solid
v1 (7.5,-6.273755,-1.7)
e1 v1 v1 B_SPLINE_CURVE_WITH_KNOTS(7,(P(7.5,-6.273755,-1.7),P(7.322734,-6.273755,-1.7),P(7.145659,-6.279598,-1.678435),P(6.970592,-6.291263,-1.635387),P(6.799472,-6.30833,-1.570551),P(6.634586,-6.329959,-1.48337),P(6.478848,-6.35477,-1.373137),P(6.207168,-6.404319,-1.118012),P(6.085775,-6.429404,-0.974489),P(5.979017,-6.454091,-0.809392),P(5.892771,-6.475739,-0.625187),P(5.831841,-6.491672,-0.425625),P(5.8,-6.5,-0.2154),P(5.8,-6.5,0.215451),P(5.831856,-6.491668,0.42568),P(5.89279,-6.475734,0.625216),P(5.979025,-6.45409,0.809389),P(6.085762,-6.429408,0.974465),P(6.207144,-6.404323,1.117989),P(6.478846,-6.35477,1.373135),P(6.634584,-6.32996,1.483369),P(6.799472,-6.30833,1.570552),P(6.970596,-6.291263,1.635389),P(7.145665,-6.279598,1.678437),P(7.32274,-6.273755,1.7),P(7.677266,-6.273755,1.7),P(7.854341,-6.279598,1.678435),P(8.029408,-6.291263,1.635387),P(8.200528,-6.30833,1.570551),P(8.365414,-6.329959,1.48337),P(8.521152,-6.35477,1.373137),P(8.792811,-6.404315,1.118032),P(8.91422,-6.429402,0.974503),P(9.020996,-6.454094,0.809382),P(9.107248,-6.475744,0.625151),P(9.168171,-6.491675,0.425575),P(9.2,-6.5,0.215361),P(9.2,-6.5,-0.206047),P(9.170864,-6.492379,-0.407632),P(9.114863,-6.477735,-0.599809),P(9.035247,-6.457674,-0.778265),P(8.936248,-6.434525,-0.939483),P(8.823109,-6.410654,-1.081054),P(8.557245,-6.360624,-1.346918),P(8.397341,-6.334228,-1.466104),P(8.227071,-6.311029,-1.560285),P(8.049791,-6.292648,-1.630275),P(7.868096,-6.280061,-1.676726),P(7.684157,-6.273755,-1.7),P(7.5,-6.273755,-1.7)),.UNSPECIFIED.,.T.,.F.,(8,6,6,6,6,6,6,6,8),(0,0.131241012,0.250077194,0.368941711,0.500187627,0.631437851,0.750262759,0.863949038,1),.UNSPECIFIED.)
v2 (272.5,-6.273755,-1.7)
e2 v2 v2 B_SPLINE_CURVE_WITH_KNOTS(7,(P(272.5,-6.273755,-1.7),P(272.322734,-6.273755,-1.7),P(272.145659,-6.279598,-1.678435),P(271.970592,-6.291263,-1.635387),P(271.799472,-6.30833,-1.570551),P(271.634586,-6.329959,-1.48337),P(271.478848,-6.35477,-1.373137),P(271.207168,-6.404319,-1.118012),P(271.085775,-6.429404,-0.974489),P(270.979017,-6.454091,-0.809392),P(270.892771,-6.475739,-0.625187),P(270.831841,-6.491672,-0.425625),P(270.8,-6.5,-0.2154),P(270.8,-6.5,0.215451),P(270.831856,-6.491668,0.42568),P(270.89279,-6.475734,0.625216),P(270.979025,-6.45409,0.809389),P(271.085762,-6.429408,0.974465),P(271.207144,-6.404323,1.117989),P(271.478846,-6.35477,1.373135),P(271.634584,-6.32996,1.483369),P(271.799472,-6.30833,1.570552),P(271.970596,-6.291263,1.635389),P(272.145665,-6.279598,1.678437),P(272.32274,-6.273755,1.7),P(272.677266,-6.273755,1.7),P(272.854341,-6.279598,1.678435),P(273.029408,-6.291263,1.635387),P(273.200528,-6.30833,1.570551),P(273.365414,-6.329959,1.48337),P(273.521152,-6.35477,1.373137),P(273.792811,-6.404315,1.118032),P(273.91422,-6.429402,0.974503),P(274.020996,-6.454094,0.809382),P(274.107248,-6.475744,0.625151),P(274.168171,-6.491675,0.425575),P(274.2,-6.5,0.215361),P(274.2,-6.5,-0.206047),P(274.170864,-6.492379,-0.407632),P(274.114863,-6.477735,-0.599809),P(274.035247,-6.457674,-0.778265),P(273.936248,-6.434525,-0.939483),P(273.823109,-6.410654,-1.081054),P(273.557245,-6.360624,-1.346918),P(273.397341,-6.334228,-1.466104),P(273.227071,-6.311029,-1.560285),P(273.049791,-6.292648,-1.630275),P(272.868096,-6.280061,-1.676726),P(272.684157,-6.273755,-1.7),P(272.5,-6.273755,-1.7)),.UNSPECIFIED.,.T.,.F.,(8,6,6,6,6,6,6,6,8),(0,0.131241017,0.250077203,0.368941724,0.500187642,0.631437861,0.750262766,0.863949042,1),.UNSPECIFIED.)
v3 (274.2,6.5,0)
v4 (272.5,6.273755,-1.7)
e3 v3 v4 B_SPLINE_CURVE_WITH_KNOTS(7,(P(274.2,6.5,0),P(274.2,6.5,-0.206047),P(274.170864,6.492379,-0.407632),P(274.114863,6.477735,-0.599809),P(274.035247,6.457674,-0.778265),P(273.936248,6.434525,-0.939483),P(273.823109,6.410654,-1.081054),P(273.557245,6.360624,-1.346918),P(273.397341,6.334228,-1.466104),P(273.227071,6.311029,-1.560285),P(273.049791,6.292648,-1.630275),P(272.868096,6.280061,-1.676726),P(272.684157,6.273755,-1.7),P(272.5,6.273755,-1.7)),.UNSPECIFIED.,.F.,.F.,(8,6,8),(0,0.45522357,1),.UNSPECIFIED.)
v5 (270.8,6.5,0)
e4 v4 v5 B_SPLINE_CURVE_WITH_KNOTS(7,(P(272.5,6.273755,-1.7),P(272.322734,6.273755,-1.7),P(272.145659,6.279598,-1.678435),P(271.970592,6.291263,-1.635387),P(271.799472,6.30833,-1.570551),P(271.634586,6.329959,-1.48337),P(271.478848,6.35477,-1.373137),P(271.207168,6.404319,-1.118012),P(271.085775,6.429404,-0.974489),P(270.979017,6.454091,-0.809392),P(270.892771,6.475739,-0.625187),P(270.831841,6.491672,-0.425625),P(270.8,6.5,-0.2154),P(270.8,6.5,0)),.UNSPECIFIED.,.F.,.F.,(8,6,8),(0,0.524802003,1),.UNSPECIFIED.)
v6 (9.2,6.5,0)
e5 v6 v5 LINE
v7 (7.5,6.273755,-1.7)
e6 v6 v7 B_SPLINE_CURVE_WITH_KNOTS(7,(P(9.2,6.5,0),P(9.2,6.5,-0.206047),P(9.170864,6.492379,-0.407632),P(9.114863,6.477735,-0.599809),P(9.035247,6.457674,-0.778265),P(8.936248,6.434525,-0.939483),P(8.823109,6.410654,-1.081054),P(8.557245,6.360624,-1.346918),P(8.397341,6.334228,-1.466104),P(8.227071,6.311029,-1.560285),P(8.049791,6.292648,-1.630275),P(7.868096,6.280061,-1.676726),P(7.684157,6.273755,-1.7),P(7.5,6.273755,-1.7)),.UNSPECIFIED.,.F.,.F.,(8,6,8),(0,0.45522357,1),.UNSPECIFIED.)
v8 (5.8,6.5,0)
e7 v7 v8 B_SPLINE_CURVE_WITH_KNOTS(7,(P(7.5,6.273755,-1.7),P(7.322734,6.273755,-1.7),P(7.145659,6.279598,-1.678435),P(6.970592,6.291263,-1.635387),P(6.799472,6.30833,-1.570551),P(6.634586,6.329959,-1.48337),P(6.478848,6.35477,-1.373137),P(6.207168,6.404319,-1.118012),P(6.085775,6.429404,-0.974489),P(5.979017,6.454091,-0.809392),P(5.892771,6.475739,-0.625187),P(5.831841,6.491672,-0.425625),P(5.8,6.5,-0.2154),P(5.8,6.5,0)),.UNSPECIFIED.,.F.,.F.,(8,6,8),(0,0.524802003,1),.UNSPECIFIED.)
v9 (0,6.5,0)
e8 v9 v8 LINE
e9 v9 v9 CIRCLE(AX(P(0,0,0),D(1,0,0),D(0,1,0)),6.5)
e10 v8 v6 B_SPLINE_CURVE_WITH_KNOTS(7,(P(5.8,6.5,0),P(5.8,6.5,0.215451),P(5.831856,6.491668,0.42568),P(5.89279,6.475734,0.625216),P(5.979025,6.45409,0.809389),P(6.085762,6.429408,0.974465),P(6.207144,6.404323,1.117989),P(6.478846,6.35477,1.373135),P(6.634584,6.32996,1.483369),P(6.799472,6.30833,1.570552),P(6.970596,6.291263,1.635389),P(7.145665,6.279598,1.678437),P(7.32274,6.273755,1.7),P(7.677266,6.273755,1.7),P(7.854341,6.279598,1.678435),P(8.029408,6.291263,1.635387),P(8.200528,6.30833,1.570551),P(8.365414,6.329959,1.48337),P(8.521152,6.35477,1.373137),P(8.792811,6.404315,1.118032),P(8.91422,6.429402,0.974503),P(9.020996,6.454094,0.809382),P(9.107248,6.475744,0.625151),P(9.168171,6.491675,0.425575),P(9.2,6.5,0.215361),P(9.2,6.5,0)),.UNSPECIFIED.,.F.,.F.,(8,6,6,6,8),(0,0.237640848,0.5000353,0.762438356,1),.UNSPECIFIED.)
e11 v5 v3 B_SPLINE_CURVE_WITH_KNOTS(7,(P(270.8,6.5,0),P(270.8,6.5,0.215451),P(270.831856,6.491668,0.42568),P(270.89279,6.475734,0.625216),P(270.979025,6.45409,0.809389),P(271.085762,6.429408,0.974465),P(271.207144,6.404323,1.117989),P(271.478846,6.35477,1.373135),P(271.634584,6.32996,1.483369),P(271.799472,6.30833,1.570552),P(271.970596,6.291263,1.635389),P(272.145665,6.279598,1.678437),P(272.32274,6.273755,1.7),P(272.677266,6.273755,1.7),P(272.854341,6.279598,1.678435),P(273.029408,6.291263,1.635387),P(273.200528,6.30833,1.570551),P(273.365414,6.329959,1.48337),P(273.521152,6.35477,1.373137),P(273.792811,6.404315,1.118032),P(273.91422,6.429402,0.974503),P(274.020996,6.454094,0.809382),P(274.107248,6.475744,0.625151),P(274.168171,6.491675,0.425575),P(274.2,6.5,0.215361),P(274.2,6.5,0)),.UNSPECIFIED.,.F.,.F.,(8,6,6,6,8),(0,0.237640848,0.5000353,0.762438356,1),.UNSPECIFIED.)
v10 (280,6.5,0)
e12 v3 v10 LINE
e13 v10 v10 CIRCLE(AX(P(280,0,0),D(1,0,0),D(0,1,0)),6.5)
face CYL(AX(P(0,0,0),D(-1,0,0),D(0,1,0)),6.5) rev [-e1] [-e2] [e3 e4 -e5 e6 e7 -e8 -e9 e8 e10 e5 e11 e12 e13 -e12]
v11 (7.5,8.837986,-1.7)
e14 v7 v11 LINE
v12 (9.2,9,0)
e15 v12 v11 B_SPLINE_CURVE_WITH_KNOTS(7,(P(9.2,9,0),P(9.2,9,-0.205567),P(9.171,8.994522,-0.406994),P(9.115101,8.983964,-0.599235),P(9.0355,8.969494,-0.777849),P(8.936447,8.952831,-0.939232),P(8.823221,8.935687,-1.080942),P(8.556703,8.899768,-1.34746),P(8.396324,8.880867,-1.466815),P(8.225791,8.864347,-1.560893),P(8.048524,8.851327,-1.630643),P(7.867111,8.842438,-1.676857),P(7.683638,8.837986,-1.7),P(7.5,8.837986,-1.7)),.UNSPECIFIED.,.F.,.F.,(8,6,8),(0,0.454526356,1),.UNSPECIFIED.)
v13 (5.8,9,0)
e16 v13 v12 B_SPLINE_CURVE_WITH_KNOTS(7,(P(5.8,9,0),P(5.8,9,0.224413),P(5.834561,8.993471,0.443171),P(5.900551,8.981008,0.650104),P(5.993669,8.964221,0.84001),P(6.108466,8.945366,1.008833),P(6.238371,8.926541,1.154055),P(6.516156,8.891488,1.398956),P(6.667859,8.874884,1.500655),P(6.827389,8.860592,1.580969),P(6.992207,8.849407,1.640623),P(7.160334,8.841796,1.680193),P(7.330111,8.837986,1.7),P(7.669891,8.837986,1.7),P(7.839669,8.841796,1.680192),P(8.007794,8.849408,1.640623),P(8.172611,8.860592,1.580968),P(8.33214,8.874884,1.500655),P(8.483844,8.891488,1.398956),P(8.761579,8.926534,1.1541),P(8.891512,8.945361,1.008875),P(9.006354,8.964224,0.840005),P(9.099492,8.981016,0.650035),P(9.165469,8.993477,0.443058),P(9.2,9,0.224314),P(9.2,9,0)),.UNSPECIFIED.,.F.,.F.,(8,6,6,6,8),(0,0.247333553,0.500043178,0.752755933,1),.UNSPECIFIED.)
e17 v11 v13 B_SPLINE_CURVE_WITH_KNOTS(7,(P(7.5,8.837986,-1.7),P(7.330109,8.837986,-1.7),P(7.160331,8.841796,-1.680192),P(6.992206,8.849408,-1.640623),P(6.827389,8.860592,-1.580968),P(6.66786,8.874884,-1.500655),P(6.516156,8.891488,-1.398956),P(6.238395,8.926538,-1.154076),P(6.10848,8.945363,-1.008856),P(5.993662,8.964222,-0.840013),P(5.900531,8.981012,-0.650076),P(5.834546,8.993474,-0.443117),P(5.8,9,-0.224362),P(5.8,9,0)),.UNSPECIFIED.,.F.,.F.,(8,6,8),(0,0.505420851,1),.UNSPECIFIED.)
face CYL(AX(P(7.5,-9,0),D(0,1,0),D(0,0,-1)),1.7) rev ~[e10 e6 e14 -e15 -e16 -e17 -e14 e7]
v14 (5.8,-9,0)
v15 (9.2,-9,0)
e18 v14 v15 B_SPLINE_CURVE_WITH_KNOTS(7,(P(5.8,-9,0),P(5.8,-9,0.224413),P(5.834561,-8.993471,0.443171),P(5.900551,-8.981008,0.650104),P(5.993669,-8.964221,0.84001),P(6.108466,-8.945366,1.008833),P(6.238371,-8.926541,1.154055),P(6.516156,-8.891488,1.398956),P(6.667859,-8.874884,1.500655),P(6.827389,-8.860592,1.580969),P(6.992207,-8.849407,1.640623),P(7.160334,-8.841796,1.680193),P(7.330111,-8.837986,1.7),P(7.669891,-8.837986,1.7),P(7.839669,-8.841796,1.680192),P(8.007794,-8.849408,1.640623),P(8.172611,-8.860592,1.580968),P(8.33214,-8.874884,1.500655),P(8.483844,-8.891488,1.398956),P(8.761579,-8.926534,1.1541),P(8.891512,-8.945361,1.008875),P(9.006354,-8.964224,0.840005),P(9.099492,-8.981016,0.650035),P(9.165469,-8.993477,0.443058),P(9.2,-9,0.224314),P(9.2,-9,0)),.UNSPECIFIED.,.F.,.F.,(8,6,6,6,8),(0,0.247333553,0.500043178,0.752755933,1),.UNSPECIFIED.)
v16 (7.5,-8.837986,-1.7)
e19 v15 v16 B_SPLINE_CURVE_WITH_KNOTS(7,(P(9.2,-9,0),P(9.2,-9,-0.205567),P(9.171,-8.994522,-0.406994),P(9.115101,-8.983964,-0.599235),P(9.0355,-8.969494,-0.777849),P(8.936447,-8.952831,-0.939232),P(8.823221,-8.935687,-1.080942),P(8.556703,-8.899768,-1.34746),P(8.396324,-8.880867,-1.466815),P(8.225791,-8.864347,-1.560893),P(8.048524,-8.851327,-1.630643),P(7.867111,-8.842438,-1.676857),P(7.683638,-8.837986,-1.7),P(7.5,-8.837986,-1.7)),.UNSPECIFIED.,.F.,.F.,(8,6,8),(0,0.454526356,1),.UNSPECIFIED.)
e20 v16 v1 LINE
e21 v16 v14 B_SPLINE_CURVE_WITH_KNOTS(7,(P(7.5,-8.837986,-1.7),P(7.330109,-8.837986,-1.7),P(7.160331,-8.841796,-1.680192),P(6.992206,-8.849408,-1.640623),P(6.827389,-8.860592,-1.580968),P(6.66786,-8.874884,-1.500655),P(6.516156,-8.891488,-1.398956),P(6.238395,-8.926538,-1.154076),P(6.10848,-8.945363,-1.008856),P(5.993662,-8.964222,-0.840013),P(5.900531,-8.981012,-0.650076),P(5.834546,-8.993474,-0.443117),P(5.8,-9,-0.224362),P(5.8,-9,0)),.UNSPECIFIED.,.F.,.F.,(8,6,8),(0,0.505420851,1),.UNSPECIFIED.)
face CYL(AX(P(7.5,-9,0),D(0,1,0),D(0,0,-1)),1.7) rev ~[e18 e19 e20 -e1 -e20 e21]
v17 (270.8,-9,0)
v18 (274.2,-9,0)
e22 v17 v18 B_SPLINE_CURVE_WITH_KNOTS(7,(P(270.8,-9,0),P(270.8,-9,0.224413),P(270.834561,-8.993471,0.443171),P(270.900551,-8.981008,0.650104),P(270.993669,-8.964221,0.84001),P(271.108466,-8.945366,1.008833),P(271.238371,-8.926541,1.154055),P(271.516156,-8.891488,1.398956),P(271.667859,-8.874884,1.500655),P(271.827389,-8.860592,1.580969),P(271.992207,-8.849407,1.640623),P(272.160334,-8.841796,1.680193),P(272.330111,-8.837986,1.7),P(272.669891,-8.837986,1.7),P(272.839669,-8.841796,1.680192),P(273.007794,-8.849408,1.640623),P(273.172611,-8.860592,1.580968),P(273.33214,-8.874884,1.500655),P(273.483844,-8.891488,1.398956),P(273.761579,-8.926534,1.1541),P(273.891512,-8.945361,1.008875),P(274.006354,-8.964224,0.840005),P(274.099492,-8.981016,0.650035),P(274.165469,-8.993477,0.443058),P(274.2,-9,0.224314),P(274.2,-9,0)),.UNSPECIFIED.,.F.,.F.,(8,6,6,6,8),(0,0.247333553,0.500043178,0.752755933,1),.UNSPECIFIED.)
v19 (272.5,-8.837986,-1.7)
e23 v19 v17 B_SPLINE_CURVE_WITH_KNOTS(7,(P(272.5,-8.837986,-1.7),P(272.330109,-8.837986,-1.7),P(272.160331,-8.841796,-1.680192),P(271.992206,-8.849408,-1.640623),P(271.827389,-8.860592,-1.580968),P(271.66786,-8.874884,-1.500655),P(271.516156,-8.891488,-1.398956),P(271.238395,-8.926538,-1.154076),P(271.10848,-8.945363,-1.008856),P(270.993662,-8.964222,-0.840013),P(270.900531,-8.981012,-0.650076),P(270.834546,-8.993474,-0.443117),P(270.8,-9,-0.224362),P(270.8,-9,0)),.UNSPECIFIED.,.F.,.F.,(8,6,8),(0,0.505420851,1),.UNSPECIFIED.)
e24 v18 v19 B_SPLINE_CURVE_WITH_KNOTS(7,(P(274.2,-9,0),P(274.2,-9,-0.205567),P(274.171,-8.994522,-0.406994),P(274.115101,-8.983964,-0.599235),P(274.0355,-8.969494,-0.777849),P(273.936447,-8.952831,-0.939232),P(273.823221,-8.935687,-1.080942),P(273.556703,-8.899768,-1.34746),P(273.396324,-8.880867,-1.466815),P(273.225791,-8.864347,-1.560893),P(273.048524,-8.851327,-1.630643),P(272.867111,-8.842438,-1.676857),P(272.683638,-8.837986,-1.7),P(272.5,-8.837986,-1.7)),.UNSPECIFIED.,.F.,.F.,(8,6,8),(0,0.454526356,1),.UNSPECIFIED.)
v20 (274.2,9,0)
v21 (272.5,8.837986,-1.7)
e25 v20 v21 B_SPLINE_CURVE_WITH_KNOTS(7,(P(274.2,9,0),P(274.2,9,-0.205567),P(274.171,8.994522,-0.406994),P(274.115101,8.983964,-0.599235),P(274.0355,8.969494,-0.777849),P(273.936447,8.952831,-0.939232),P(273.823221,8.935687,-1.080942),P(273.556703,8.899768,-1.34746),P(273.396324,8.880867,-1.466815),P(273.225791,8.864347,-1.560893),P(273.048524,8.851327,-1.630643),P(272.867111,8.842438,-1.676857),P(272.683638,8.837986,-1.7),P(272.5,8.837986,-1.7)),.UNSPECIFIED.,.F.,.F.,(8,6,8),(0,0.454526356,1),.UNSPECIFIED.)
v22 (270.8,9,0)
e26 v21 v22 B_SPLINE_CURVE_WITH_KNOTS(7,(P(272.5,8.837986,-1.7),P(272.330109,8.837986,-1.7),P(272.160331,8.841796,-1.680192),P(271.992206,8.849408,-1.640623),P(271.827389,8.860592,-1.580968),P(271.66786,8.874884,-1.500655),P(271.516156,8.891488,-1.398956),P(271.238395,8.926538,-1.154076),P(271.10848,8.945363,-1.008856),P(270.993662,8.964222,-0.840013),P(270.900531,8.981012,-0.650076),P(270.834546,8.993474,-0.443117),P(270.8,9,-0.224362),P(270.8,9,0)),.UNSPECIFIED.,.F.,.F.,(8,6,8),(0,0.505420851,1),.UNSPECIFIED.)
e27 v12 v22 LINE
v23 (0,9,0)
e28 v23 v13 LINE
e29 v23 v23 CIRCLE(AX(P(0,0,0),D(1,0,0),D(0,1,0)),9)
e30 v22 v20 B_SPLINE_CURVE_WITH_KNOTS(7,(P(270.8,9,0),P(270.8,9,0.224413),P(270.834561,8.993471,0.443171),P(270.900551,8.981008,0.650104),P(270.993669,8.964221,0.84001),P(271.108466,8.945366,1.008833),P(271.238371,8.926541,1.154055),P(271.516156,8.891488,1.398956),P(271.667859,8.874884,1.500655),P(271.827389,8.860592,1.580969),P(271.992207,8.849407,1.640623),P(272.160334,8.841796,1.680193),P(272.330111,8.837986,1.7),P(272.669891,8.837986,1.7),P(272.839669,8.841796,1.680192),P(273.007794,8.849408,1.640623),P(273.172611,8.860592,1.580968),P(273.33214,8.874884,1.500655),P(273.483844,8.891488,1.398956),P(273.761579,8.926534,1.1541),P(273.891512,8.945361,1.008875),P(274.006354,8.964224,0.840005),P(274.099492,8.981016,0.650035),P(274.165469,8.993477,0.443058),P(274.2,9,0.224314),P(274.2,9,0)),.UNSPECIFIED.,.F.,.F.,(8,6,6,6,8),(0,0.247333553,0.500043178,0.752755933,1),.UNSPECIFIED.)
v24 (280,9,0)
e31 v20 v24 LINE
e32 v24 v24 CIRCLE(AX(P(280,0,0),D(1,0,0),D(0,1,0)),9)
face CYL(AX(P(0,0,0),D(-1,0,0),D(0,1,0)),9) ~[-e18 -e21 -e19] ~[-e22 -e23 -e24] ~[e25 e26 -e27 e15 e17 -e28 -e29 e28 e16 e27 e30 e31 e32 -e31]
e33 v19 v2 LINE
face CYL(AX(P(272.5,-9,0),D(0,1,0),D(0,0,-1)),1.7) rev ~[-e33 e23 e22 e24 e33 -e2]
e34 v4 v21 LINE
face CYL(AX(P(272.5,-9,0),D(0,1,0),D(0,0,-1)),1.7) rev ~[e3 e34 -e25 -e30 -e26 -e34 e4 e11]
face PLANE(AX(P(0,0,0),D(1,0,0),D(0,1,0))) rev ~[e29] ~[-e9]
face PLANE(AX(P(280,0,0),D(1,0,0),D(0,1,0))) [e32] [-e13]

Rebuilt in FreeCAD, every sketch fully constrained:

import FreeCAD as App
import Part
import Sketcher

V = App.Vector

doc = App.newDocument("Part")
body = doc.addObject("PartDesign::Body", "Body")

# Sketch on YZ plane
sketch1 = body.newObject("Sketcher::SketchObject", "Sketch")
sketch1.AttachmentSupport = (doc.getObject("YZ_Plane"), [""])
sketch1.MapMode = "FlatFace"
sketch1.addGeometry(Part.Circle(V(0, 0, 0), V(0, 0, 1), 9), False)
sketch1.addGeometry(Part.Circle(V(0, 0, 0), V(0, 0, 1), 6), False)
sketch1.addConstraint(Sketcher.Constraint("Coincident", 0, 3, -1, 1))
sketch1.addConstraint(Sketcher.Constraint("Coincident", 1, 3, -1, 1))
sketch1.addConstraint(Sketcher.Constraint("Diameter", 0, 18.0))
sketch1.addConstraint(Sketcher.Constraint("Diameter", 1, 13.0))
pad1 = body.newObject("PartDesign::Pad", "Pad")
pad1.Profile = sketch1
pad1.Length = 280

# Sketch on XZ plane
sketch2 = body.newObject("Sketcher::SketchObject", "Sketch001")
sketch2.AttachmentSupport = (doc.getObject("XZ_Plane"), [""])
sketch2.MapMode = "FlatFace"
sketch2.AttachmentOffset = App.Placement(V(0, 0, 9), App.Rotation())
sketch2.addGeometry(Part.Circle(V(7.5, 0, 0), V(0, 0, 1), 1.7), False)
sketch2.addGeometry(Part.Circle(V(272.5, 0, 0), V(0, 0, 1), 1.7), False)
sketch2.addConstraint(Sketcher.Constraint("Equal", 0, 1))
sketch2.addConstraint(Sketcher.Constraint("PointOnObject", 0, 3, -1))
sketch2.addConstraint(Sketcher.Constraint("PointOnObject", 1, 3, -1))
sketch2.addConstraint(Sketcher.Constraint("Diameter", 0, 3.4))
sketch2.addConstraint(Sketcher.Constraint("DistanceX", 0, 3, 1, 3, 265.0))
sketch2.addConstraint(Sketcher.Constraint("DistanceX", -1, 1, 0, 3, 7.5))
doc.recompute()
hole = body.newObject("PartDesign::Hole", "Hole")
hole.Profile = sketch2
hole.ThreadType = "None"
hole.Diameter = 3.4
hole.DepthType = "ThroughAll"

doc.recompute()
